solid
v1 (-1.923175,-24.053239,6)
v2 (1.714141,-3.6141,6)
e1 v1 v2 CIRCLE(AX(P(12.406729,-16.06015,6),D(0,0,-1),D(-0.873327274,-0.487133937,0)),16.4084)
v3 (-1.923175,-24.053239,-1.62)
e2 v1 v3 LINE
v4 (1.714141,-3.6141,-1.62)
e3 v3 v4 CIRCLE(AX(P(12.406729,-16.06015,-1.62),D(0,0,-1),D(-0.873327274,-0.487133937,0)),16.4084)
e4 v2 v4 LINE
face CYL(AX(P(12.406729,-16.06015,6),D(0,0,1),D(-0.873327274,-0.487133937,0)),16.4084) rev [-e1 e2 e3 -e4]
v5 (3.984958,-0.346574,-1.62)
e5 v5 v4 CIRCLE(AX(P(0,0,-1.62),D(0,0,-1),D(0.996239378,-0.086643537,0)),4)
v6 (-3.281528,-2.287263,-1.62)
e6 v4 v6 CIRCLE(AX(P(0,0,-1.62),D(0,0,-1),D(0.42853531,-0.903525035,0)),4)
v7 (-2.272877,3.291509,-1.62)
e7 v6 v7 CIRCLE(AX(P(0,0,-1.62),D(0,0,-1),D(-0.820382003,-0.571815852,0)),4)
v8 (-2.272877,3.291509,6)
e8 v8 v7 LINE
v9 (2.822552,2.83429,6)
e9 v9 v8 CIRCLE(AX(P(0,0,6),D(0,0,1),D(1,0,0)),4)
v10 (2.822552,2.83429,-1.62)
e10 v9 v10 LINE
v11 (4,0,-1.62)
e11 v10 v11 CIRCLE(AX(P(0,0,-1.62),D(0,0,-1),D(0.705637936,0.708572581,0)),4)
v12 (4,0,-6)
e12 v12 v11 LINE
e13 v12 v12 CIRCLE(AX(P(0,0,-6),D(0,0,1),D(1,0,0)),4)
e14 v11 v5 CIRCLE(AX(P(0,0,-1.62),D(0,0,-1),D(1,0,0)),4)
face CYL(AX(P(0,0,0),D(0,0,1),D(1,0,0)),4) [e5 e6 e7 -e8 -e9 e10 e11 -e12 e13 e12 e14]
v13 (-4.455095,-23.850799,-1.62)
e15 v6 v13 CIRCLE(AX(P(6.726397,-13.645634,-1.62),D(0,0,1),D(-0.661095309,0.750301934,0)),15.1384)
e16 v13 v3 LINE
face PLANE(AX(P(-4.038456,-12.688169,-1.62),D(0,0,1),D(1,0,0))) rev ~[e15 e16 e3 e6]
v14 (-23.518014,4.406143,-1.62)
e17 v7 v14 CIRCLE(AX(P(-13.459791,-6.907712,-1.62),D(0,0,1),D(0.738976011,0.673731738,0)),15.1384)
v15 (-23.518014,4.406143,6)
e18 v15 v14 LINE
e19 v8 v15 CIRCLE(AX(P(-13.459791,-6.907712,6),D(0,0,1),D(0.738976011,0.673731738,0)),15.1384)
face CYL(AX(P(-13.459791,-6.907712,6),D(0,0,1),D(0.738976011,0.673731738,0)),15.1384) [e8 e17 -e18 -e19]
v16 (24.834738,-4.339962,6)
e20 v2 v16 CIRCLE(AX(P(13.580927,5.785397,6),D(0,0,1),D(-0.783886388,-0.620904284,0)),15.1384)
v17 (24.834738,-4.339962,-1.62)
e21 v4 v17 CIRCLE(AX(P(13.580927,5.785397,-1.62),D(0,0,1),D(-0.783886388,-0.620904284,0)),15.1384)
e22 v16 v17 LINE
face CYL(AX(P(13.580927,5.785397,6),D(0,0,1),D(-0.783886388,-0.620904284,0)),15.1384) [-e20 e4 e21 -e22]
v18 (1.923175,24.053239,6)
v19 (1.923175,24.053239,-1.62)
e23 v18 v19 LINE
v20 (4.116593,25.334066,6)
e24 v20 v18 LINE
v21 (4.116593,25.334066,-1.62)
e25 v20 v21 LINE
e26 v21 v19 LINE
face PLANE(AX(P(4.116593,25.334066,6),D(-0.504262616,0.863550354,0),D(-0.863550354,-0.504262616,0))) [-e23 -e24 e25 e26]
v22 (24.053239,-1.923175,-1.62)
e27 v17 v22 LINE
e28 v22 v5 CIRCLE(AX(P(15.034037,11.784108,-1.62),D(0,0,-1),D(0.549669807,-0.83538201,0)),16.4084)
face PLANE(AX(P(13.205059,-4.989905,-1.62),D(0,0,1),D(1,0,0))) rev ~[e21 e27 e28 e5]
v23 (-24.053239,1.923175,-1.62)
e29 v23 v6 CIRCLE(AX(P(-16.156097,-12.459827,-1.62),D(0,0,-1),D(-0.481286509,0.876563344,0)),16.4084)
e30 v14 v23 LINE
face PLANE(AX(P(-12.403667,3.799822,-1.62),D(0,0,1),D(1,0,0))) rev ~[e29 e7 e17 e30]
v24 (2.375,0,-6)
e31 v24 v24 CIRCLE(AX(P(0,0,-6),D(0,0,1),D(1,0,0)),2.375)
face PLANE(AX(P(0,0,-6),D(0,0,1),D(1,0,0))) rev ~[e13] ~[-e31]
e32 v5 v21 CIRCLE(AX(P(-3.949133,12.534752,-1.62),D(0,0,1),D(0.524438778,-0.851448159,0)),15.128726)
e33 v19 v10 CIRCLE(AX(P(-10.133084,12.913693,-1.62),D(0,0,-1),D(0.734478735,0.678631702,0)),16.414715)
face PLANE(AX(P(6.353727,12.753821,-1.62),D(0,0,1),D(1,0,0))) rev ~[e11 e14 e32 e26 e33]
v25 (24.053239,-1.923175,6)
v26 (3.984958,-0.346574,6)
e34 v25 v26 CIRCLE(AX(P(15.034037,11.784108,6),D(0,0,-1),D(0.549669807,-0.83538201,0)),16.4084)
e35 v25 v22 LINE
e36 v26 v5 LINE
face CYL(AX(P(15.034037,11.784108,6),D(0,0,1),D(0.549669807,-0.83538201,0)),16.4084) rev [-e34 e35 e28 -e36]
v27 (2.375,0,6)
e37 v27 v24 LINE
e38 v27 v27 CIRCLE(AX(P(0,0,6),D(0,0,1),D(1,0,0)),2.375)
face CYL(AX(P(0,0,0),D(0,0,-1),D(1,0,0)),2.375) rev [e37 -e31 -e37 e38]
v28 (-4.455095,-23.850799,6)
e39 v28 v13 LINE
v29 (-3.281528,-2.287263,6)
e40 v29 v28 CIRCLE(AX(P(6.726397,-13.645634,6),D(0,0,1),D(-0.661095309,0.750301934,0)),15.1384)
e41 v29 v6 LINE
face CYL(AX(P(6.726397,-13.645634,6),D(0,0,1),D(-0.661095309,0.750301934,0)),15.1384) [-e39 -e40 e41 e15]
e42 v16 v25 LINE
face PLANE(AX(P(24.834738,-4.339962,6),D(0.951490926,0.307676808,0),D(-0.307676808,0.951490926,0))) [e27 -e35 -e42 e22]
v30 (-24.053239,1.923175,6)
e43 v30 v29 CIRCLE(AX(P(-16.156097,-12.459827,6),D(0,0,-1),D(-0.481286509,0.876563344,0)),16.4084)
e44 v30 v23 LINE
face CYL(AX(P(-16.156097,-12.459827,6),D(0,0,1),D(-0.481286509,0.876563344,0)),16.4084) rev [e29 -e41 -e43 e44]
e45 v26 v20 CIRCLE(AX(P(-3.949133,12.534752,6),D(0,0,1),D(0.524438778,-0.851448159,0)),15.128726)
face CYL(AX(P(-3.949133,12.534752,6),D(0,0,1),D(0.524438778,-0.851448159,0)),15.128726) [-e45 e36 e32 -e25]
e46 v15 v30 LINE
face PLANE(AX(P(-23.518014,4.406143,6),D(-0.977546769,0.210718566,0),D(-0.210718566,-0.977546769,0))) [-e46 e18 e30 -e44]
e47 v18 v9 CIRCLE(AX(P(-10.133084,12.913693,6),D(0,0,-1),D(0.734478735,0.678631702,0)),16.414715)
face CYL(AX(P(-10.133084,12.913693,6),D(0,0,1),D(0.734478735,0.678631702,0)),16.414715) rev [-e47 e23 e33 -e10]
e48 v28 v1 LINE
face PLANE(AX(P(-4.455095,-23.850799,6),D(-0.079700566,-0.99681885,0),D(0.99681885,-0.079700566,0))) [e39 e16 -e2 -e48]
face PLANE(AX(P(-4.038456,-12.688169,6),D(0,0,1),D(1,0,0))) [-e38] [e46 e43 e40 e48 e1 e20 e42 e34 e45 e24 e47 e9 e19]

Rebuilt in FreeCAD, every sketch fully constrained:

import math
import FreeCAD as App
import Part
import Sketcher
from FreeCAD import Vector
Q = App.Units.Quantity

doc = App.newDocument("Part")
body = doc.addObject("PartDesign::Body", "Body")

# Sketch on XY plane
sketch1 = body.newObject("Sketcher::SketchObject", "Sketch")
sketch1.AttachmentSupport = (doc.getObject("XY_Plane"), [""])
sketch1.MapMode = "FlatFace"
sketch1.addGeometry(Part.Circle(Vector(0, 0, 0), Vector(0, 0, 1), 4), False)
sketch1.addGeometry(Part.Circle(Vector(0, 0, 0), Vector(0, 0, 1), 2.375), False)
sketch1.addConstraint(Sketcher.Constraint("Coincident", 0, 3, -1, 1))
sketch1.addConstraint(Sketcher.Constraint("Coincident", 1, 3, -1, 1))
sketch1.addConstraint(Sketcher.Constraint("Diameter", 0, 8.0))
sketch1.addConstraint(Sketcher.Constraint("Diameter", 1, 4.75))
pad1 = body.newObject("PartDesign::Pad", "Pad")
pad1.Profile = sketch1
pad1.Length = 12
pad1.Midplane = True

# Sketch on XY plane
sketch2 = body.newObject("Sketcher::SketchObject", "Sketch001")
sketch2.AttachmentSupport = (doc.getObject("XY_Plane"), [""])
sketch2.MapMode = "FlatFace"
sketch2.AttachmentOffset = App.Placement(Vector(0, 0, 6), App.Rotation())
sketch2.addGeometry(Part.ArcOfCircle(Part.Circle(Vector(12.406729, -16.06015, 0), Vector(0, 0, 1), 16.4084), math.radians(130.666367), math.radians(209.152377)), False)
sketch2.addGeometry(Part.ArcOfCircle(Part.Circle(Vector(0, 0, 0), Vector(0, 0, 1), 4), math.radians(-145.123052), math.radians(-64.625357)), False)
sketch2.addGeometry(Part.ArcOfCircle(Part.Circle(Vector(6.726397, -13.645634, 0), Vector(0, 0, 1), 15.1384), math.radians(131.383461), math.radians(222.386194)), False)
sketch2.addGeometry(Part.LineSegment(Vector(-4.455095, -23.850799, 0), Vector(-1.923175, -24.053239, 0)), False)
sketch2.addGeometry(Part.ArcOfCircle(Part.Circle(Vector(0, 0, 0), Vector(0, 0, 1), 4), math.radians(124.626141), math.radians(214.876948)), False)
sketch2.addGeometry(Part.ArcOfCircle(Part.Circle(Vector(-13.459791, -6.907712, 0), Vector(0, 0, 1), 15.1384), math.radians(42.35574), math.radians(131.637675)), False)
sketch2.addGeometry(Part.LineSegment(Vector(-23.518014, 4.406143, 0), Vector(-24.053239, 1.923175, 0)), False)
sketch2.addGeometry(Part.ArcOfCircle(Part.Circle(Vector(-16.156097, -12.459827, 0), Vector(0, 0, 1), 16.4084), math.radians(38.313268), math.radians(118.76946)), False)
sketch2.addGeometry(Part.ArcOfCircle(Part.Circle(Vector(-10.133084, 12.913693, 0), Vector(0, 0, 1), 16.414715), math.radians(-37.882689), math.radians(42.736812)), False)
sketch2.addGeometry(Part.ArcOfCircle(Part.Circle(Vector(0, 0, 0), Vector(0, 0, 1), 4), math.radians(0), math.radians(45.118895)), False)
sketch2.addGeometry(Part.ArcOfCircle(Part.Circle(Vector(0, 0, 0), Vector(0, 0, 1), 4), math.radians(-4.970541), math.radians(0)), False)
sketch2.addGeometry(Part.ArcOfCircle(Part.Circle(Vector(-3.949133, 12.534752, 0), Vector(0, 0, 1), 15.128726), math.radians(-58.36953), math.radians(57.782157)), False)
sketch2.addGeometry(Part.LineSegment(Vector(4.116593, 25.334066, 0), Vector(1.923175, 24.053239, 0)), False)
sketch2.addGeometry(Part.ArcOfCircle(Part.Circle(Vector(15.034037, 11.784108, 0), Vector(0, 0, 1), 16.4084), math.radians(-132.328431), math.radians(-56.655637)), False)
sketch2.addGeometry(Part.ArcOfCircle(Part.Circle(Vector(0, 0, 0), Vector(0, 0, 1), 4), math.radians(-64.625357), math.radians(-4.970541)), False)
sketch2.addGeometry(Part.ArcOfCircle(Part.Circle(Vector(13.580927, 5.785397, 0), Vector(0, 0, 1), 15.1384), math.radians(-141.6178), math.radians(-41.978573)), False)
sketch2.addGeometry(Part.LineSegment(Vector(24.834738, -4.339962, 0), Vector(24.053239, -1.923175, 0)), False)
sketch2.addConstraint(Sketcher.Constraint("Coincident", 0, 1, 1, 2))
sketch2.addConstraint(Sketcher.Constraint("Coincident", 1, 1, 2, 1))
sketch2.addConstraint(Sketcher.Constraint("Coincident", 2, 2, 3, 1))
sketch2.addConstraint(Sketcher.Constraint("Coincident", 3, 2, 0, 2))
sketch2.addConstraint(Sketcher.Constraint("Coincident", 4, 1, 5, 1))
sketch2.addConstraint(Sketcher.Constraint("Coincident", 5, 2, 6, 1))
sketch2.addConstraint(Sketcher.Constraint("Coincident", 6, 2, 7, 2))
sketch2.addConstraint(Sketcher.Constraint("Coincident", 7, 1, 4, 2))
sketch2.addConstraint(Sketcher.Constraint("Coincident", 8, 1, 9, 2))
sketch2.addConstraint(Sketcher.Constraint("Tangent", 9, 1, 10, 2))
sketch2.addConstraint(Sketcher.Constraint("Coincident", 10, 1, 11, 1))
sketch2.addConstraint(Sketcher.Constraint("Coincident", 11, 2, 12, 1))
sketch2.addConstraint(Sketcher.Constraint("Coincident", 12, 2, 8, 2))
sketch2.addConstraint(Sketcher.Constraint("Coincident", 13, 1, 14, 2))
sketch2.addConstraint(Sketcher.Constraint("Coincident", 14, 1, 15, 1))
sketch2.addConstraint(Sketcher.Constraint("Coincident", 15, 2, 16, 1))
sketch2.addConstraint(Sketcher.Constraint("Coincident", 16, 2, 13, 2))
sketch2.addConstraint(Sketcher.Constraint("Coincident", 1, 3, -1, 1))
sketch2.addConstraint(Sketcher.Constraint("Coincident", 4, 3, -1, 1))
sketch2.addConstraint(Sketcher.Constraint("Coincident", 9, 3, -1, 1))
sketch2.addConstraint(Sketcher.Constraint("Coincident", 14, 3, -1, 1))
sketch2.addConstraint(Sketcher.Constraint("Coincident", 7, 1, 1, 1))
sketch2.addConstraint(Sketcher.Constraint("Coincident", 13, 1, 10, 1))
sketch2.addConstraint(Sketcher.Constraint("Coincident", 14, 1, 0, 1))
sketch2.addConstraint(Sketcher.Constraint("Equal", 2, 5))
sketch2.addConstraint(Sketcher.Constraint("Equal", 0, 7))
sketch2.addConstraint(Sketcher.Constraint("Equal", 9, 10))
sketch2.addConstraint(Sketcher.Constraint("Equal", 7, 13))
sketch2.addConstraint(Sketcher.Constraint("Equal", 5, 15))
sketch2.addConstraint(Sketcher.Constraint("Symmetric", 3, 2, 12, 2, -1, 1))
sketch2.addConstraint(Sketcher.Constraint("Symmetric", 6, 2, 16, 2, -1, 1))
sketch2.addConstraint(Sketcher.Constraint("PointOnObject", 9, 1, -1))
sketch2.addConstraint(Sketcher.Constraint("Equal", 3, 6))
sketch2.addConstraint(Sketcher.Constraint("Equal", 6, 12))
sketch2.addConstraint(Sketcher.Constraint("Equal", 12, 16))
sketch2.addConstraint(Sketcher.Constraint("Radius", 0, Q("0.646 in")))
sketch2.addConstraint(Sketcher.Constraint("Radius", 2, Q("0.596 in")))
sketch2.addConstraint(Sketcher.Constraint("Distance", 3, Q("0.1 in")))
sketch2.addConstraint(Sketcher.Constraint("Radius", 1, 4.0))
sketch2.addConstraint(Sketcher.Constraint("Radius", 8, 16.414715))
sketch2.addConstraint(Sketcher.Constraint("Radius", 11, 15.128726))
sketch2.addConstraint(Sketcher.Constraint("DistanceY", 0, 1, -1, 1, 3.6141))
sketch2.addConstraint(Sketcher.Constraint("DistanceY", 2, 2, -1, 1, 23.850799))
sketch2.addConstraint(Sketcher.Constraint("DistanceY", 7, 3, 6, 2, 14.383002))
sketch2.addConstraint(Sketcher.Constraint("DistanceX", 13, 3, 15, 2, 9.800701))
sketch2.addConstraint(Sketcher.Constraint("DistanceX", 16, 2, 15, 2, 0.781499))
sketch2.addConstraint(Sketcher.Constraint("DistanceY", 16, 2, 10, 1, 1.576601))
sketch2.addConstraint(Sketcher.Constraint("DistanceX", -1, 1, 0, 3, 12.406729))
sketch2.addConstraint(Sketcher.Constraint("DistanceX", 5, 3, -1, 1, 13.459791))
sketch2.addConstraint(Sketcher.Constraint("DistanceY", 5, 3, -1, 1, 6.907712))
sketch2.addConstraint(Sketcher.Constraint("DistanceX", 1, 1, -1, 1, 3.281528))
sketch2.addConstraint(Sketcher.Constraint("DistanceY", 3, 2, -1, 1, 24.053239))
sketch2.addConstraint(Sketcher.Constraint("DistanceX", -1, 1, 8, 1, 2.822552))
sketch2.addConstraint(Sketcher.Constraint("DistanceX", 8, 3, 11, 3, 6.183951))
pad2 = body.newObject("PartDesign::Pad", "Pad001")
pad2.Profile = sketch2
pad2.Length = Q("0.3 in")
pad2.Reversed = True

doc.recompute()
